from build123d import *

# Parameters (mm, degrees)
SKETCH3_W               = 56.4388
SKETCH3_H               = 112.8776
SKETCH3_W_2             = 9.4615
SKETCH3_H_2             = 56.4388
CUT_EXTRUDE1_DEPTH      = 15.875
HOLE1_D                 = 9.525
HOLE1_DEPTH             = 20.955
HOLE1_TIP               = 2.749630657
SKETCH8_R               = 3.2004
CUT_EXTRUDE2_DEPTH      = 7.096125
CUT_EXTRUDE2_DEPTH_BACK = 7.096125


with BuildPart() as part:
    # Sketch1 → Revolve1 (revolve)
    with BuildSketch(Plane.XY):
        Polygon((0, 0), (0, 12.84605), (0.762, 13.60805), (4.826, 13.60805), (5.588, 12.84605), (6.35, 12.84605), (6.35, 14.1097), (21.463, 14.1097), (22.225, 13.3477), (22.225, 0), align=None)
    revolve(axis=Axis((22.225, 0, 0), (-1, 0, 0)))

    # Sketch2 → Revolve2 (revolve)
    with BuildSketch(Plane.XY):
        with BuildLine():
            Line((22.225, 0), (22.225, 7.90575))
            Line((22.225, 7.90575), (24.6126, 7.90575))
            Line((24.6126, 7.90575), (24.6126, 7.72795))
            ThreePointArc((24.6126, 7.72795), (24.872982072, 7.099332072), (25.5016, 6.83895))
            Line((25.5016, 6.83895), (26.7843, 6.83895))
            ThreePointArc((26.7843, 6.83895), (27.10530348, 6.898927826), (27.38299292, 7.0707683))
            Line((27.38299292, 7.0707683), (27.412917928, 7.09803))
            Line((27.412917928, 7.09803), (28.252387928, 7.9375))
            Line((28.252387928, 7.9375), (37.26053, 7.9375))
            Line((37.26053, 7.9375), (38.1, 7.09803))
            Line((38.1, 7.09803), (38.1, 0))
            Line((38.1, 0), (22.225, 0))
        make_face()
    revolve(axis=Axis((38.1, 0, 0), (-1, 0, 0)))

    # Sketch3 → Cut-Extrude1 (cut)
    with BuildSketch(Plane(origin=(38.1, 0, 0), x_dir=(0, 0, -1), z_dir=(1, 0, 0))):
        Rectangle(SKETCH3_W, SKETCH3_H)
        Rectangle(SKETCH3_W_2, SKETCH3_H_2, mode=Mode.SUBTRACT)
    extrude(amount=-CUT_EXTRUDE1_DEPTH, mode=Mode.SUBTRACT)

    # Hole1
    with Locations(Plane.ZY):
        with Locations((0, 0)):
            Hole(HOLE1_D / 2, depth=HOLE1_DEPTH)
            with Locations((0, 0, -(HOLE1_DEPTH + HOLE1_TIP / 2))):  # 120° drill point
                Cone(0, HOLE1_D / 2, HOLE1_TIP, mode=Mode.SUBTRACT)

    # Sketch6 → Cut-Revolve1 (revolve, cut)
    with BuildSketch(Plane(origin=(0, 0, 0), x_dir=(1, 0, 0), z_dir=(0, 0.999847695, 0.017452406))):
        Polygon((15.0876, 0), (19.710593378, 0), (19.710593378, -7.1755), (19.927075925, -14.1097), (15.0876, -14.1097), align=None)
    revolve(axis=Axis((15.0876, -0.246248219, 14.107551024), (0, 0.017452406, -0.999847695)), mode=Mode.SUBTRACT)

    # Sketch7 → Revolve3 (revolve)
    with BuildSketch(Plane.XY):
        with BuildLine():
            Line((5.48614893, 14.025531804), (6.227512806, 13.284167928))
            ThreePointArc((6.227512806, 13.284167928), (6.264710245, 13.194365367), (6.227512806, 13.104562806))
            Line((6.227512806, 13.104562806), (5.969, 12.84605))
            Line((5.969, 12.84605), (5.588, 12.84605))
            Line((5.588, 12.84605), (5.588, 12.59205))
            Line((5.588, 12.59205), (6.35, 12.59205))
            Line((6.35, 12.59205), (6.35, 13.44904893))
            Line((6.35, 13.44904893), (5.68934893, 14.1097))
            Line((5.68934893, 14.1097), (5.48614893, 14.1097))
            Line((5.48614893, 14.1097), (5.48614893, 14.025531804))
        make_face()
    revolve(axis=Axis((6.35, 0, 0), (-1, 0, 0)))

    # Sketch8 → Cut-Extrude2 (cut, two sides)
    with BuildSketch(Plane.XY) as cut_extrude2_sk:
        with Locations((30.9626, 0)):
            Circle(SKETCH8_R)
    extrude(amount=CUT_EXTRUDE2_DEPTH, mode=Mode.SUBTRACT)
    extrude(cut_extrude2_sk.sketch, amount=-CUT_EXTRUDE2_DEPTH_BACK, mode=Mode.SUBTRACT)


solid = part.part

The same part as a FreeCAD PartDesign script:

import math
import FreeCAD as App
import Part
import Sketcher
Q = App.Units.Quantity

doc = App.newDocument("Part")
body = doc.addObject("PartDesign::Body", "Body")

sketch1 = body.newObject("Sketcher::SketchObject", "Sketch")
sketch1.AttachmentSupport = (doc.getObject("XY_Plane"), [""])
sketch1.MapMode = "FlatFace"
sketch1.addGeometry(Part.LineSegment(App.Vector(0, 12.8, 0), App.Vector(0, 0, 0)), False)
sketch1.addGeometry(Part.LineSegment(App.Vector(0, 0, 0), App.Vector(22.2, 0, 0)), False)
sketch1.addGeometry(Part.LineSegment(App.Vector(22.2, 0, 0), App.Vector(22.2, 13.3, 0)), False)
sketch1.addGeometry(Part.LineSegment(App.Vector(22.2, 13.3, 0), App.Vector(21.5, 14.1, 0)), False)
sketch1.addGeometry(Part.LineSegment(App.Vector(21.5, 14.1, 0), App.Vector(6.3, 14.1, 0)), False)
sketch1.addGeometry(Part.LineSegment(App.Vector(6.3, 14.1, 0), App.Vector(6.3, 12.8, 0)), False)
sketch1.addGeometry(Part.LineSegment(App.Vector(6.3, 12.8, 0), App.Vector(5.6, 12.8, 0)), False)
sketch1.addGeometry(Part.LineSegment(App.Vector(5.6, 12.8, 0), App.Vector(4.8, 13.6, 0)), False)
sketch1.addGeometry(Part.LineSegment(App.Vector(4.8, 13.6, 0), App.Vector(0.8, 13.6, 0)), False)
sketch1.addGeometry(Part.LineSegment(App.Vector(0.8, 13.6, 0), App.Vector(0, 12.8, 0)), False)
sketch1.addConstraint(Sketcher.Constraint("Coincident", 0, 2, 1, 1))
sketch1.addConstraint(Sketcher.Constraint("Coincident", 1, 2, 2, 1))
sketch1.addConstraint(Sketcher.Constraint("Coincident", 2, 2, 3, 1))
sketch1.addConstraint(Sketcher.Constraint("Coincident", 3, 2, 4, 1))
sketch1.addConstraint(Sketcher.Constraint("Coincident", 4, 2, 5, 1))
sketch1.addConstraint(Sketcher.Constraint("Coincident", 5, 2, 6, 1))
sketch1.addConstraint(Sketcher.Constraint("Coincident", 6, 2, 7, 1))
sketch1.addConstraint(Sketcher.Constraint("Coincident", 7, 2, 8, 1))
sketch1.addConstraint(Sketcher.Constraint("Coincident", 8, 2, 9, 1))
sketch1.addConstraint(Sketcher.Constraint("Coincident", 9, 2, 0, 1))
sketch1.addConstraint(Sketcher.Constraint("Vertical", 0))
sketch1.addConstraint(Sketcher.Constraint("Horizontal", 1))
sketch1.addConstraint(Sketcher.Constraint("Vertical", 2))
sketch1.addConstraint(Sketcher.Constraint("Horizontal", 4))
sketch1.addConstraint(Sketcher.Constraint("Vertical", 5))
sketch1.addConstraint(Sketcher.Constraint("Horizontal", 6))
sketch1.addConstraint(Sketcher.Constraint("Horizontal", 8))
sketch1.addConstraint(Sketcher.Constraint("Coincident", 0, 2, -1, 1))
sketch1.addConstraint(Sketcher.Constraint("Parallel", 3, 7))
sketch1.addConstraint(Sketcher.Constraint("Perpendicular", 7, 9))
sketch1.addConstraint(Sketcher.Constraint("Horizontal", 6, 2, 9, 2))
sketch1.addConstraint(Sketcher.Constraint("Equal", 3, 7))
sketch1.addConstraint(Sketcher.Constraint("Equal", 7, 9))
sketch1.addConstraint(Sketcher.Constraint("DistanceX", 6, 2, 6, 1, Q("0.03 in")))
sketch1.addConstraint(Sketcher.Constraint("DistanceX", 8, 2, 8, 1, Q("0.16 in")))
sketch1.addConstraint(Sketcher.Constraint("DistanceX", 1, 1, 1, 2, Q("0.875 in")))
sketch1.addConstraint(Sketcher.Constraint("DistanceX", 4, 2, 4, 1, Q("0.595 in")))
sketch1.addConstraint(Sketcher.Constraint("DistanceY", 2, 1, 2, 2, Q("0.5255 in")))
sketch1.addConstraint(Sketcher.Constraint("DistanceY", 0, 2, 0, 1, 12.84605))
revolution = body.newObject("PartDesign::Revolution", "Revolution")
revolution.Profile = sketch1
revolution.ReferenceAxis = (sketch1, ["H_Axis"])
revolution.Angle = 360

sketch2 = body.newObject("Sketcher::SketchObject", "Sketch001")
sketch2.AttachmentSupport = (doc.getObject("XY_Plane"), [""])
sketch2.MapMode = "FlatFace"
sketch2.addGeometry(Part.LineSegment(App.Vector(22.225, 7.906, 0), App.Vector(22.225, 0, 0)), False)
sketch2.addGeometry(Part.LineSegment(App.Vector(22.225, 0, 0), App.Vector(38.1, 0, 0)), False)
sketch2.addGeometry(Part.LineSegment(App.Vector(38.1, 0, 0), App.Vector(38.1, 7.098, 0)), False)
sketch2.addGeometry(Part.LineSegment(App.Vector(38.1, 7.098, 0), App.Vector(37.261, 7.938, 0)), False)
sketch2.addGeometry(Part.LineSegment(App.Vector(37.261, 7.938, 0), App.Vector(28.252, 7.938, 0)), False)
sketch2.addGeometry(Part.LineSegment(App.Vector(28.252, 7.938, 0), App.Vector(27.413, 7.098, 0)), False)
sketch2.addGeometry(Part.LineSegment(App.Vector(27.413, 7.098, 0), App.Vector(27.383, 7.071, 0)), False)
sketch2.addGeometry(Part.ArcOfCircle(Part.Circle(App.Vector(26.784, 7.728, 0), App.Vector(0, 0, 1), 0.889), math.radians(-90), math.radians(-48)), False)
sketch2.addGeometry(Part.LineSegment(App.Vector(26.784, 6.839, 0), App.Vector(25.502, 6.839, 0)), False)
sketch2.addGeometry(Part.ArcOfCircle(Part.Circle(App.Vector(25.502, 7.728, 0), App.Vector(0, 0, 1), 0.889), math.radians(-180), math.radians(-90)), False)
sketch2.addGeometry(Part.LineSegment(App.Vector(24.613, 7.728, 0), App.Vector(24.613, 7.906, 0)), False)
sketch2.addGeometry(Part.LineSegment(App.Vector(24.613, 7.906, 0), App.Vector(22.225, 7.906, 0)), False)
sketch2.addConstraint(Sketcher.Constraint("Coincident", 0, 2, 1, 1))
sketch2.addConstraint(Sketcher.Constraint("Coincident", 1, 2, 2, 1))
sketch2.addConstraint(Sketcher.Constraint("Coincident", 2, 2, 3, 1))
sketch2.addConstraint(Sketcher.Constraint("Coincident", 3, 2, 4, 1))
sketch2.addConstraint(Sketcher.Constraint("Coincident", 4, 2, 5, 1))
sketch2.addConstraint(Sketcher.Constraint("Coincident", 5, 2, 6, 1))
sketch2.addConstraint(Sketcher.Constraint("Tangent", 6, 2, 7, 2))
sketch2.addConstraint(Sketcher.Constraint("Tangent", 7, 1, 8, 1))
sketch2.addConstraint(Sketcher.Constraint("Tangent", 8, 2, 9, 2))
sketch2.addConstraint(Sketcher.Constraint("Tangent", 9, 1, 10, 1))
sketch2.addConstraint(Sketcher.Constraint("Coincident", 10, 2, 11, 1))
sketch2.addConstraint(Sketcher.Constraint("Coincident", 11, 2, 0, 1))
sketch2.addConstraint(Sketcher.Constraint("Vertical", 0))
sketch2.addConstraint(Sketcher.Constraint("Horizontal", 1))
sketch2.addConstraint(Sketcher.Constraint("Vertical", 2))
sketch2.addConstraint(Sketcher.Constraint("Horizontal", 4))
sketch2.addConstraint(Sketcher.Constraint("Horizontal", 8))
sketch2.addConstraint(Sketcher.Constraint("Vertical", 10))
sketch2.addConstraint(Sketcher.Constraint("Horizontal", 11))
sketch2.addConstraint(Sketcher.Constraint("Equal", 7, 9))
sketch2.addConstraint(Sketcher.Constraint("PointOnObject", 0, 2, -1))
sketch2.addConstraint(Sketcher.Constraint("Perpendicular", 3, 5))
sketch2.addConstraint(Sketcher.Constraint("Horizontal", 2, 2, 5, 2))
sketch2.addConstraint(Sketcher.Constraint("Equal", 3, 5))
sketch2.addConstraint(Sketcher.Constraint("Radius", 7, Q("0.035 in")))
sketch2.addConstraint(Sketcher.Constraint("DistanceX", -1, 1, 1, 2, Q("1.5 in")))
sketch2.addConstraint(Sketcher.Constraint("DistanceX", 1, 1, 1, 2, Q("0.625 in")))
sketch2.addConstraint(Sketcher.Constraint("DistanceX", 11, 2, 11, 1, Q("0.094 in")))
sketch2.addConstraint(Sketcher.Constraint("DistanceY", 10, 1, 10, 2, Q("0.007 in")))
sketch2.addConstraint(Sketcher.Constraint("DistanceX", 8, 2, 8, 1, Q("0.0505 in")))
sketch2.addConstraint(Sketcher.Constraint("DistanceY", -1, 1, 3, 2, Q("0.3125 in")))
sketch2.addConstraint(Sketcher.Constraint("DistanceY", 2, 2, 7, 3, Q("0.0248 in")))
sketch2.addConstraint(Sketcher.Constraint("DistanceY", 0, 2, 0, 1, 7.90575))
sketch2.addConstraint(Sketcher.Constraint("Distance", 6, 0.040481))
revolution2 = body.newObject("PartDesign::Revolution", "Revolution001")
revolution2.Profile = sketch2
revolution2.ReferenceAxis = (sketch2, ["H_Axis"])
revolution2.Angle = 360

sketch3 = body.newObject("Sketcher::SketchObject", "Sketch002")
sketch3.AttachmentSupport = (doc.getObject("YZ_Plane"), [""])
sketch3.MapMode = "FlatFace"
sketch3.AttachmentOffset = App.Placement(App.Vector(0, 0, 1.5 * 25.4), App.Rotation())
sketch3.addGeometry(Part.LineSegment(App.Vector(56, 28, 0), App.Vector(-56, 28, 0)), False)
sketch3.addGeometry(Part.LineSegment(App.Vector(-56, 28, 0), App.Vector(-56, -28, 0)), False)
sketch3.addGeometry(Part.LineSegment(App.Vector(-56, -28, 0), App.Vector(56, -28, 0)), False)
sketch3.addGeometry(Part.LineSegment(App.Vector(56, -28, 0), App.Vector(56, 28, 0)), False)
sketch3.addGeometry(Part.LineSegment(App.Vector(-28, -5, 0), App.Vector(-28, 5, 0)), False)
sketch3.addGeometry(Part.LineSegment(App.Vector(-28, 5, 0), App.Vector(28, 5, 0)), False)
sketch3.addGeometry(Part.LineSegment(App.Vector(28, 5, 0), App.Vector(28, -5, 0)), False)
sketch3.addGeometry(Part.LineSegment(App.Vector(28, -5, 0), App.Vector(-28, -5, 0)), False)
sketch3.addConstraint(Sketcher.Constraint("Coincident", 0, 2, 1, 1))
sketch3.addConstraint(Sketcher.Constraint("Coincident", 1, 2, 2, 1))
sketch3.addConstraint(Sketcher.Constraint("Coincident", 2, 2, 3, 1))
sketch3.addConstraint(Sketcher.Constraint("Coincident", 3, 2, 0, 1))
sketch3.addConstraint(Sketcher.Constraint("Coincident", 4, 2, 5, 1))
sketch3.addConstraint(Sketcher.Constraint("Coincident", 5, 2, 6, 1))
sketch3.addConstraint(Sketcher.Constraint("Coincident", 6, 2, 7, 1))
sketch3.addConstraint(Sketcher.Constraint("Coincident", 7, 2, 4, 1))
sketch3.addConstraint(Sketcher.Constraint("Horizontal", 0))
sketch3.addConstraint(Sketcher.Constraint("Vertical", 1))
sketch3.addConstraint(Sketcher.Constraint("Horizontal", 2))
sketch3.addConstraint(Sketcher.Constraint("Vertical", 3))
sketch3.addConstraint(Sketcher.Constraint("Vertical", 4))
sketch3.addConstraint(Sketcher.Constraint("Horizontal", 5))
sketch3.addConstraint(Sketcher.Constraint("Vertical", 6))
sketch3.addConstraint(Sketcher.Constraint("Horizontal", 7))
sketch3.addConstraint(Sketcher.Constraint("Symmetric", 0, 2, 2, 2, -1, 1))
sketch3.addConstraint(Sketcher.Constraint("Symmetric", 4, 2, 6, 2, -1, 1))
sketch3.addConstraint(Sketcher.Constraint("Equal", 7, 1))
sketch3.addConstraint(Sketcher.Constraint("DistanceX", 0, 2, 0, 1, Q("4.444 in")))
sketch3.addConstraint(Sketcher.Constraint("DistanceX", 5, 1, 5, 2, Q("2.222 in")))
sketch3.addConstraint(Sketcher.Constraint("DistanceY", 4, 1, 4, 2, Q("0.3725 in")))
pocket1 = body.newObject("PartDesign::Pocket", "Pocket")
pocket1.Profile = sketch3
pocket1.Length = Q("0.625 in")

sketch4 = body.newObject("Sketcher::SketchObject", "Sketch003")
sketch4.AttachmentSupport = (doc.getObject("YZ_Plane"), [""])
sketch4.MapMode = "FlatFace"
sketch4.addGeometry(Part.Circle(App.Vector(0, 0, 0), App.Vector(0, 0, 1), 4.8), False)
sketch4.addConstraint(Sketcher.Constraint("Coincident", 0, 3, -1, 1))
sketch4.addConstraint(Sketcher.Constraint("Diameter", 0, Q("0.375 in")))
doc.recompute()
hole = body.newObject("PartDesign::Hole", "Hole")
hole.Profile = sketch4
hole.ThreadType = "None"
hole.Diameter = Q("0.375 in")
hole.DepthType = "Dimension"
hole.Depth = Q("0.825 in")
hole.DrillPoint = "Angled"
hole.DrillPointAngle = 120
hole.Reversed = True

sketch5 = body.newObject("Sketcher::SketchObject", "Sketch004")
sketch5.Placement = App.Placement(App.Vector(0, 0, 0), App.Rotation(App.Vector(1, 0, 0), App.Vector(0, 0.017452406, -0.999847695), App.Vector(0, 0.999847695, 0.017452406), "ZXY"))
sketch5.addGeometry(Part.LineSegment(App.Vector(19.7, 0, 0), App.Vector(15.1, 0, 0)), False)
sketch5.addGeometry(Part.LineSegment(App.Vector(15.1, 0, 0), App.Vector(15.1, -14.1, 0)), False)
sketch5.addGeometry(Part.LineSegment(App.Vector(15.1, -14.1, 0), App.Vector(19.9, -14.1, 0)), False)
sketch5.addGeometry(Part.LineSegment(App.Vector(19.9, -14.1, 0), App.Vector(19.7, -7.2, 0)), False)
sketch5.addGeometry(Part.LineSegment(App.Vector(19.7, -7.2, 0), App.Vector(19.7, 0, 0)), False)
sketch5.addGeometry(Part.LineSegment(App.Vector(15.1, -14.1, 0), App.Vector(15.1, 0, 0)), True)
sketch5.addConstraint(Sketcher.Constraint("Coincident", 0, 2, 1, 1))
sketch5.addConstraint(Sketcher.Constraint("Coincident", 1, 2, 2, 1))
sketch5.addConstraint(Sketcher.Constraint("Coincident", 2, 2, 3, 1))
sketch5.addConstraint(Sketcher.Constraint("Coincident", 3, 2, 4, 1))
sketch5.addConstraint(Sketcher.Constraint("Coincident", 4, 2, 0, 1))
sketch5.addConstraint(Sketcher.Constraint("Horizontal", 0))
sketch5.addConstraint(Sketcher.Constraint("Vertical", 1))
sketch5.addConstraint(Sketcher.Constraint("Horizontal", 2))
sketch5.addConstraint(Sketcher.Constraint("Vertical", 4))
sketch5.addConstraint(Sketcher.Constraint("Vertical", 5))
sketch5.addConstraint(Sketcher.Constraint("Coincident", 5, 1, 1, 2))
sketch5.addConstraint(Sketcher.Constraint("PointOnObject", 0, 2, -1))
sketch5.addConstraint(Sketcher.Constraint("PointOnObject", 5, 2, -1))
sketch5.addConstraint(Sketcher.Constraint("DistanceY", 1, 2, 1, 1, Q("0.5555 in")))
sketch5.addConstraint(Sketcher.Constraint("DistanceY", 4, 1, 4, 2, Q("0.2825 in")))
sketch5.addConstraint(Sketcher.Constraint("DistanceX", -1, 1, 0, 2, Q("0.594 in")))
sketch5.addConstraint(Sketcher.Constraint("Distance", 3, 6.937578))
sketch5.addConstraint(Sketcher.Constraint("DistanceX", 0, 2, 0, 1, 4.622993))
groove = body.newObject("PartDesign::Groove", "Groove")
groove.Profile = sketch5
groove.ReferenceAxis = (sketch5, ["Axis0"])
groove.Angle = 360

sketch6 = body.newObject("Sketcher::SketchObject", "Sketch005")
sketch6.AttachmentSupport = (doc.getObject("XY_Plane"), [""])
sketch6.MapMode = "FlatFace"
sketch6.addGeometry(Part.LineSegment(App.Vector(5.49, 14.03, 0), App.Vector(6.23, 13.28, 0)), False)
sketch6.addGeometry(Part.ArcOfCircle(Part.Circle(App.Vector(6.14, 13.19, 0), App.Vector(0, 0, 1), 0.13), math.radians(-45), math.radians(45)), False)
sketch6.addGeometry(Part.LineSegment(App.Vector(6.23, 13.1, 0), App.Vector(5.97, 12.85, 0)), False)
sketch6.addGeometry(Part.LineSegment(App.Vector(5.97, 12.85, 0), App.Vector(5.59, 12.85, 0)), False)
sketch6.addGeometry(Part.LineSegment(App.Vector(5.59, 12.85, 0), App.Vector(5.59, 12.59, 0)), False)
sketch6.addGeometry(Part.LineSegment(App.Vector(5.59, 12.59, 0), App.Vector(6.35, 12.59, 0)), False)
sketch6.addGeometry(Part.LineSegment(App.Vector(6.35, 12.59, 0), App.Vector(6.35, 13.45, 0)), False)
sketch6.addGeometry(Part.LineSegment(App.Vector(6.35, 13.45, 0), App.Vector(5.69, 14.11, 0)), False)
sketch6.addGeometry(Part.LineSegment(App.Vector(5.69, 14.11, 0), App.Vector(5.49, 14.11, 0)), False)
sketch6.addGeometry(Part.LineSegment(App.Vector(5.49, 14.11, 0), App.Vector(5.49, 14.03, 0)), False)
sketch6.addConstraint(Sketcher.Constraint("Tangent", 0, 2, 1, 2))
sketch6.addConstraint(Sketcher.Constraint("Tangent", 1, 1, 2, 1))
sketch6.addConstraint(Sketcher.Constraint("Coincident", 2, 2, 3, 1))
sketch6.addConstraint(Sketcher.Constraint("Coincident", 3, 2, 4, 1))
sketch6.addConstraint(Sketcher.Constraint("Coincident", 4, 2, 5, 1))
sketch6.addConstraint(Sketcher.Constraint("Coincident", 5, 2, 6, 1))
sketch6.addConstraint(Sketcher.Constraint("Coincident", 6, 2, 7, 1))
sketch6.addConstraint(Sketcher.Constraint("Coincident", 7, 2, 8, 1))
sketch6.addConstraint(Sketcher.Constraint("Coincident", 8, 2, 9, 1))
sketch6.addConstraint(Sketcher.Constraint("Coincident", 9, 2, 0, 1))
sketch6.addConstraint(Sketcher.Constraint("Horizontal", 3))
sketch6.addConstraint(Sketcher.Constraint("Vertical", 4))
sketch6.addConstraint(Sketcher.Constraint("Horizontal", 5))
sketch6.addConstraint(Sketcher.Constraint("Vertical", 6))
sketch6.addConstraint(Sketcher.Constraint("Horizontal", 8))
sketch6.addConstraint(Sketcher.Constraint("Vertical", 9))
sketch6.addConstraint(Sketcher.Constraint("Perpendicular", 0, 2))
sketch6.addConstraint(Sketcher.Constraint("Perpendicular", 2, 7))
sketch6.addConstraint(Sketcher.Constraint("Vertical", 0, 2, 1, 1))
sketch6.addConstraint(Sketcher.Constraint("Radius", 1, Q("0.005 in")))
sketch6.addConstraint(Sketcher.Constraint("DistanceX", 5, 1, 5, 2, Q("0.03 in")))
sketch6.addConstraint(Sketcher.Constraint("DistanceY", 4, 2, 4, 1, Q("0.01 in")))
sketch6.addConstraint(Sketcher.Constraint("DistanceX", 3, 2, 3, 1, Q("0.015 in")))
sketch6.addConstraint(Sketcher.Constraint("DistanceX", 8, 2, 8, 1, Q("0.008 in")))
sketch6.addConstraint(Sketcher.Constraint("DistanceX", -1, 1, 3, 2, Q("0.22 in")))
sketch6.addConstraint(Sketcher.Constraint("DistanceY", 6, 1, 6, 2, 0.856999))
sketch6.addConstraint(Sketcher.Constraint("DistanceY", -1, 1, 7, 2, Q("0.5555 in")))
sketch6.addConstraint(Sketcher.Constraint("Distance", 7, 0.934302))
sketch6.addConstraint(Sketcher.Constraint("DistanceY", 9, 2, 9, 1, 0.084168))
revolution3 = body.newObject("PartDesign::Revolution", "Revolution002")
revolution3.Profile = sketch6
revolution3.ReferenceAxis = (sketch6, ["H_Axis"])
revolution3.Angle = 360

sketch7 = body.newObject("Sketcher::SketchObject", "Sketch006")
sketch7.AttachmentSupport = (doc.getObject("XY_Plane"), [""])
sketch7.MapMode = "FlatFace"
sketch7.addGeometry(Part.Circle(App.Vector(31, 0, 0), App.Vector(0, 0, 1), 3.2), False)
sketch7.addConstraint(Sketcher.Constraint("PointOnObject", 0, 3, -1))
sketch7.addConstraint(Sketcher.Constraint("Diameter", 0, Q("0.252 in")))
sketch7.addConstraint(Sketcher.Constraint("DistanceX", -1, 1, 0, 3, Q("1.219 in")))
pocket2 = body.newObject("PartDesign::Pocket", "Pocket001")
pocket2.Profile = sketch7
pocket2.Type = "ThroughAll"
pocket2.Midplane = True

doc.recompute()
